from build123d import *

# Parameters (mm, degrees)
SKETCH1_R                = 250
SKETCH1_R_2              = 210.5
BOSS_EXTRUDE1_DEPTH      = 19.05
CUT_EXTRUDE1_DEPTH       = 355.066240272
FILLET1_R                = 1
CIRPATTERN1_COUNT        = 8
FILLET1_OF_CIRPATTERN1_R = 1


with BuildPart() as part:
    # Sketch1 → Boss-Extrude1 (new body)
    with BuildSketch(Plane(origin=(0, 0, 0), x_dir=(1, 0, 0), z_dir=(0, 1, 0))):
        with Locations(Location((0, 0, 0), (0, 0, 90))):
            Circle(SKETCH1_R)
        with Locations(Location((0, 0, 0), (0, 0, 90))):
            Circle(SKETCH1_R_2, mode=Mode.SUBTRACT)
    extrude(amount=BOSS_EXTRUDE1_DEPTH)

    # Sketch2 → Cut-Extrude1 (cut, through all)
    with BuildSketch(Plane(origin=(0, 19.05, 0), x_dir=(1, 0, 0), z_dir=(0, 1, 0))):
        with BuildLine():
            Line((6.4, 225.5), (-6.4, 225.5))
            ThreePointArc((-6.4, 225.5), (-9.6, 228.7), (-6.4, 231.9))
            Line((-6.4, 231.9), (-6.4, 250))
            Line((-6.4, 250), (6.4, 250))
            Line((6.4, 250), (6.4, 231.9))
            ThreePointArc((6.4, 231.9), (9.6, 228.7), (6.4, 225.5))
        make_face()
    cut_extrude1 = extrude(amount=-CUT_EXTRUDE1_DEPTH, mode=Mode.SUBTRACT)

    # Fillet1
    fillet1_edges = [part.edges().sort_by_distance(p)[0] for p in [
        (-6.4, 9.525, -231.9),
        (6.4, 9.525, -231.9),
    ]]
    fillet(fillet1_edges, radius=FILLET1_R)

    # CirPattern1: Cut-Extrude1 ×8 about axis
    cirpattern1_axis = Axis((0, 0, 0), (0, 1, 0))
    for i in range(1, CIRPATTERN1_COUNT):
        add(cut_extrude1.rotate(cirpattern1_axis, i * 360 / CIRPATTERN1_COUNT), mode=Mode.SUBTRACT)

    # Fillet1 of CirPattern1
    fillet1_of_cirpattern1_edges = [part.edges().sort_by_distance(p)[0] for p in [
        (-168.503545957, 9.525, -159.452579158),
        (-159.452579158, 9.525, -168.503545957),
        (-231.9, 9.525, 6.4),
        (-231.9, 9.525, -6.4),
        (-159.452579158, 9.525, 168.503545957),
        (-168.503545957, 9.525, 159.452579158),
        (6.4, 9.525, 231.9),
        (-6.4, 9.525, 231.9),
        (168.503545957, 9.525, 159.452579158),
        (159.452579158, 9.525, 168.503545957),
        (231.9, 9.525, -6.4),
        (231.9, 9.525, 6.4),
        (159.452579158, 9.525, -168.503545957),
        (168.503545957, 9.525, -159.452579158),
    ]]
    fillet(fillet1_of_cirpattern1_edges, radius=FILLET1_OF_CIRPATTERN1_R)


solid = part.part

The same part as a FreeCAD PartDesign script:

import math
import FreeCAD as App
import Part
import Sketcher


def edges_at(feature, points):
    """Names of the edges that pass closest to the given points."""
    edges = feature.Shape.Edges
    near = lambda p: min(range(len(edges)), key=lambda i: edges[i].distToShape(Part.Vertex(*p))[0])
    return sorted({f"Edge{near(p) + 1}" for p in points})

doc = App.newDocument("Part")
params = doc.addObject("Spreadsheet::Sheet", "Params")
for row, (alias, value) in enumerate([
    ("sketch1_diameter", "500 mm"),
    ("sketch1_diameter2", "421 mm"),
    ("pad1_length", "19.05 mm"),
    ("sketch2_radius", "3.2 mm"),
    ("sketch2_width", "12.8 mm"),
    ("sketch2_height", "18.1 mm"),
    ("fillet_radius", "1 mm"),
    ("fillet2_radius", "1 mm"),
], start=1):
    params.set(f"A{row}", alias)
    params.set(f"B{row}", "=" + value)
    params.setAlias(f"B{row}", alias)

body = doc.addObject("PartDesign::Body", "Body")

# Sketch on XZ plane
sketch1 = body.newObject("Sketcher::SketchObject", "Sketch")
sketch1.AttachmentSupport = (doc.getObject("XZ_Plane"), [""])
sketch1.MapMode = "FlatFace"
sketch1.addGeometry(Part.Circle(App.Vector(0, 0, 0), App.Vector(0, 0, 1), 250), False)
sketch1.addGeometry(Part.Circle(App.Vector(0, 0, 0), App.Vector(0, 0, 1), 210), False)
sketch1.addConstraint(Sketcher.Constraint("Coincident", 0, 3, -1, 1))
sketch1.addConstraint(Sketcher.Constraint("Coincident", 1, 3, -1, 1))
sketch1.addConstraint(Sketcher.Constraint("Diameter", 0, 500.0))
sketch1.addConstraint(Sketcher.Constraint("Diameter", 1, 421.0))
sketch1.setExpression("Constraints[2]", "Params.sketch1_diameter")
sketch1.setExpression("Constraints[3]", "Params.sketch1_diameter2")
pad1 = body.newObject("PartDesign::Pad", "Pad")
pad1.Profile = sketch1
pad1.setExpression("Length", "Params.pad1_length")
pad1.Reversed = True

# Sketch on XZ plane
sketch2 = body.newObject("Sketcher::SketchObject", "Sketch001")
sketch2.AttachmentSupport = (doc.getObject("XZ_Plane"), [""])
sketch2.MapMode = "FlatFace"
sketch2.AttachmentOffset = App.Placement(App.Vector(0, 0, -19.05), App.Rotation())
sketch2.addGeometry(Part.LineSegment(App.Vector(-6.4, -225.5, 0), App.Vector(6.4, -225.5, 0)), False)
sketch2.addGeometry(Part.ArcOfCircle(Part.Circle(App.Vector(6.4, -228.7, 0), App.Vector(0, 0, 1), 3.2), math.radians(-90), math.radians(90)), False)
sketch2.addGeometry(Part.LineSegment(App.Vector(6.4, -231.9, 0), App.Vector(6.4, -250, 0)), False)
sketch2.addGeometry(Part.LineSegment(App.Vector(6.4, -250, 0), App.Vector(-6.4, -250, 0)), False)
sketch2.addGeometry(Part.LineSegment(App.Vector(-6.4, -250, 0), App.Vector(-6.4, -231.9, 0)), False)
sketch2.addGeometry(Part.ArcOfCircle(Part.Circle(App.Vector(-6.4, -228.7, 0), App.Vector(0, 0, 1), 3.2), math.radians(90), math.radians(270)), False)
sketch2.addConstraint(Sketcher.Constraint("Tangent", 0, 2, 1, 2))
sketch2.addConstraint(Sketcher.Constraint("Coincident", 1, 1, 2, 1))
sketch2.addConstraint(Sketcher.Constraint("Coincident", 2, 2, 3, 1))
sketch2.addConstraint(Sketcher.Constraint("Coincident", 3, 2, 4, 1))
sketch2.addConstraint(Sketcher.Constraint("Coincident", 4, 2, 5, 2))
sketch2.addConstraint(Sketcher.Constraint("Tangent", 5, 1, 0, 1))
sketch2.addConstraint(Sketcher.Constraint("Horizontal", 0))
sketch2.addConstraint(Sketcher.Constraint("Vertical", 2))
sketch2.addConstraint(Sketcher.Constraint("Horizontal", 3))
sketch2.addConstraint(Sketcher.Constraint("Vertical", 4))
sketch2.addConstraint(Sketcher.Constraint("Equal", 1, 5))
sketch2.addConstraint(Sketcher.Constraint("Vertical", 0, 2, 1, 1))
sketch2.addConstraint(Sketcher.Constraint("Vertical", 5, 3, 3, 2))
sketch2.addConstraint(Sketcher.Constraint("Radius", 1, 3.2))
sketch2.addConstraint(Sketcher.Constraint("DistanceX", 0, 1, 0, 2, 12.8))
sketch2.addConstraint(Sketcher.Constraint("DistanceY", 2, 2, 2, 1, 18.1))
sketch2.addConstraint(Sketcher.Constraint("DistanceY", 2, 2, -1, 1, 250.0))
sketch2.addConstraint(Sketcher.Constraint("DistanceX", -1, 1, 1, 3, 6.4))
sketch2.setExpression("Constraints[13]", "Params.sketch2_radius")
sketch2.setExpression("Constraints[14]", "Params.sketch2_width")
sketch2.setExpression("Constraints[15]", "Params.sketch2_height")
pocket1 = body.newObject("PartDesign::Pocket", "Pocket")
pocket1.Profile = sketch2
pocket1.Type = "ThroughAll"
pocket1.Reversed = True
doc.recompute()

fillet = body.newObject("PartDesign::Fillet", "Fillet")
fillet.Base = (pocket1, edges_at(pocket1, [(-6.4, 9.525, -231.9), (6.4, 9.525, -231.9)]))
fillet.setExpression("Radius", "Params.fillet_radius")
doc.recompute()

polarpattern = body.newObject("PartDesign::PolarPattern", "PolarPattern")
polarpattern.Originals = [pocket1]
polarpattern.Axis = (doc.getObject("Y_Axis"), [""])
polarpattern.Angle = 360
polarpattern.Occurrences = 8
body.Tip = polarpattern
doc.recompute()

fillet2 = body.newObject("PartDesign::Fillet", "Fillet001")
fillet2.Base = (polarpattern, edges_at(polarpattern, [
    (-168.504, 9.525, -159.453),
    (-159.453, 9.525, -168.504),
    (-231.9, 9.525, 6.4),
    (-231.9, 9.525, -6.4),
    (-159.453, 9.525, 168.504),
    (-168.504, 9.525, 159.453),
    (6.4, 9.525, 231.9),
    (-6.4, 9.525, 231.9),
    (168.504, 9.525, 159.453),
    (159.453, 9.525, 168.504),
    (231.9, 9.525, -6.4),
    (231.9, 9.525, 6.4),
    (159.453, 9.525, -168.504),
    (168.504, 9.525, -159.453),
]))
fillet2.setExpression("Radius", "Params.fillet2_radius")

doc.recompute()
